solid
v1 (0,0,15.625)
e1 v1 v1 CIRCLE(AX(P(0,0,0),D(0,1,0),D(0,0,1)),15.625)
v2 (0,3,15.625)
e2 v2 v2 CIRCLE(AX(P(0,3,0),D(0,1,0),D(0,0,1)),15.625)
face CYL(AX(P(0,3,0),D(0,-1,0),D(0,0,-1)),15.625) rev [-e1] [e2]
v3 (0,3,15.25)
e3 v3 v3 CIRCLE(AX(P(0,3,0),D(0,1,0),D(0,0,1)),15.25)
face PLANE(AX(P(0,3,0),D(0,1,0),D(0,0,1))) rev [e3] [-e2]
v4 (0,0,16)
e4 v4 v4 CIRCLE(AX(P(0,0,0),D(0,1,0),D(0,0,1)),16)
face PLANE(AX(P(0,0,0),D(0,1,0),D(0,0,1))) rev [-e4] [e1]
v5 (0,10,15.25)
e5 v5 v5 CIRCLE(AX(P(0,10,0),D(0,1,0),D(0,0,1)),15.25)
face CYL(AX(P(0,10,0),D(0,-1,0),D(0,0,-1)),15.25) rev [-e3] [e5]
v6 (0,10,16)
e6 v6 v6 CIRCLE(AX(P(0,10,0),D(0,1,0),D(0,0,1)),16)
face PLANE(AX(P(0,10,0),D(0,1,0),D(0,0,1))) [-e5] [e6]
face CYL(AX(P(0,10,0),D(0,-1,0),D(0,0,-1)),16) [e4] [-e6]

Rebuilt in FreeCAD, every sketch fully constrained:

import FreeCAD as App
import Part
import Sketcher
Q = App.Units.Quantity

doc = App.newDocument("Part")
params = doc.addObject("Spreadsheet::Sheet", "Params")
for row, (alias, value) in enumerate([
    ("sketch1_diameter", "32 mm"),
    ("sketch1_diameter2", "30.5 mm"),
    ("pad1_length", "10 mm"),
    ("sketch2_diameter", "31.25 mm"),
    ("pocket1_length", "3 mm"),
], start=1):
    params.set(f"A{row}", alias)
    params.set(f"B{row}", "=" + value)
    params.setAlias(f"B{row}", alias)

body = doc.addObject("PartDesign::Body", "Body")

sketch1 = doc.addObject("Sketcher::SketchObject", "Sketch")
body.addObject(sketch1)
sketch1.AttachmentSupport = (doc.XZ_Plane, [""])
sketch1.MapMode = "FlatFace"
sketch1.addGeometry(Part.Circle(App.Vector(0, 0, 0), App.Vector(0, 0, 1), 16), False)
sketch1.addGeometry(Part.Circle(App.Vector(0, 0, 0), App.Vector(0, 0, 1), 15), False)
sketch1.addConstraint(Sketcher.Constraint("Coincident", 0, 3, -1, 1))
sketch1.addConstraint(Sketcher.Constraint("Coincident", 1, 3, -1, 1))
sketch1.addConstraint(Sketcher.Constraint("Diameter", 0, Q("32 mm")))
sketch1.addConstraint(Sketcher.Constraint("Diameter", 1, Q("30.5 mm")))
sketch1.setExpression("Constraints[2]", "Params.sketch1_diameter")
sketch1.setExpression("Constraints[3]", "Params.sketch1_diameter2")
pad1 = doc.addObject("PartDesign::Pad", "Pad")
body.addObject(pad1)
pad1.Profile = sketch1
pad1.setExpression("Length", "Params.pad1_length")
pad1.Reversed = True

sketch2 = doc.addObject("Sketcher::SketchObject", "Sketch001")
body.addObject(sketch2)
sketch2.AttachmentSupport = (doc.XZ_Plane, [""])
sketch2.MapMode = "FlatFace"
sketch2.addGeometry(Part.Circle(App.Vector(0, 0, 0), App.Vector(0, 0, 1), 16), False)
sketch2.addConstraint(Sketcher.Constraint("Coincident", 0, 3, -1, 1))
sketch2.addConstraint(Sketcher.Constraint("Diameter", 0, Q("31.25 mm")))
sketch2.setExpression("Constraints[1]", "Params.sketch2_diameter")
pocket1 = doc.addObject("PartDesign::Pocket", "Pocket")
body.addObject(pocket1)
pocket1.Profile = sketch2
pocket1.setExpression("Length", "Params.pocket1_length")

doc.recompute()
